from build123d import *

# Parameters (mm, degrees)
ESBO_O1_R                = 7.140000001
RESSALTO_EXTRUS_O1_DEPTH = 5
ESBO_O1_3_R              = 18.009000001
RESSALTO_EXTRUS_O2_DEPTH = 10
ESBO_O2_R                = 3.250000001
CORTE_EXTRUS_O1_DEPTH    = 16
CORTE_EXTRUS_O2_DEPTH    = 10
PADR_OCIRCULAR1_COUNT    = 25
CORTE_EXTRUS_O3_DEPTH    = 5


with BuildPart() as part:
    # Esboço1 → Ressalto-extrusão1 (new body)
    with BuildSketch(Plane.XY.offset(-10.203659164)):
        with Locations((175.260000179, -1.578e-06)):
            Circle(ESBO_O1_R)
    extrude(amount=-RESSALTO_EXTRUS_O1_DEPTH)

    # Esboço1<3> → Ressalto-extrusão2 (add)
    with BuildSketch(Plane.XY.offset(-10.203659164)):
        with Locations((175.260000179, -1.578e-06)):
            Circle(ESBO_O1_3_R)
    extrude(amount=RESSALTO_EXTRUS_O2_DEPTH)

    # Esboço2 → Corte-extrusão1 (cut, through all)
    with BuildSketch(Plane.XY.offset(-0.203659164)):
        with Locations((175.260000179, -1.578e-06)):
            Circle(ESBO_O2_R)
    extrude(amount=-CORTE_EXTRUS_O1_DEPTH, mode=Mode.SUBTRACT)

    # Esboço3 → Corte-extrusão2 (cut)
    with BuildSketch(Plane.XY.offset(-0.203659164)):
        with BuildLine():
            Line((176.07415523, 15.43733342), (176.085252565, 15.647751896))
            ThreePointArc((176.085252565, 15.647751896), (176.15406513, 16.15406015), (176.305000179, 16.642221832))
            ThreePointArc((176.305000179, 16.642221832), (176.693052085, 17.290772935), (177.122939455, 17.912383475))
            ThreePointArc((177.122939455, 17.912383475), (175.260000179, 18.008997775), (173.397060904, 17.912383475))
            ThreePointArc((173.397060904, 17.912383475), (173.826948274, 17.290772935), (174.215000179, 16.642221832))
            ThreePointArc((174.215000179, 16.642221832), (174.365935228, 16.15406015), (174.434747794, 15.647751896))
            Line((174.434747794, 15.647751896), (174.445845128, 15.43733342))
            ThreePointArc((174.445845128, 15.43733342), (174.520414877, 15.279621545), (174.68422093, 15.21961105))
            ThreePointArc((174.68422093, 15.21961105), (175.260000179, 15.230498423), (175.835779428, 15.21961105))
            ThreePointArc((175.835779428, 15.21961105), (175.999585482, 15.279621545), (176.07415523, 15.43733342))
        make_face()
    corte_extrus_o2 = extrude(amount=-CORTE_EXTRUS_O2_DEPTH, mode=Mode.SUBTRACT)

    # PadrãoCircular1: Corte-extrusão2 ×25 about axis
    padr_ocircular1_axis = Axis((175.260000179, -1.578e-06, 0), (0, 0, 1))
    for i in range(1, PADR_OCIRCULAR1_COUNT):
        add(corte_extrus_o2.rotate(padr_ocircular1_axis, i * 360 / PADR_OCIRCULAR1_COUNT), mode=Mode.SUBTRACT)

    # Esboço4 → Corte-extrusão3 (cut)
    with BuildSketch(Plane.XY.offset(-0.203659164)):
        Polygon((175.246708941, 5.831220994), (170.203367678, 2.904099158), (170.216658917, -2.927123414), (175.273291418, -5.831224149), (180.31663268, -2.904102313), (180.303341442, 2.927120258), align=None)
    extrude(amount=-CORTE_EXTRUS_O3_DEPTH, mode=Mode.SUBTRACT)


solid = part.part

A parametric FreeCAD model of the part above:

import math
import FreeCAD as App
import Part
import Sketcher
from FreeCAD import Vector
Q = App.Units.Quantity


def add_polygon(sketch, points):
    """Adds a closed chain of lines whose ends are joined by coincident constraints."""
    first, n = sketch.GeometryCount, len(points)
    for a, b in zip(points, points[1:] + points[:1]):
        sketch.addGeometry(Part.LineSegment(App.Vector(*a, 0), App.Vector(*b, 0)), False)
    for i in range(n):
        sketch.addConstraint(Sketcher.Constraint("Coincident", first + i, 2, first + (i + 1) % n, 1))

doc = App.newDocument("Part")
body = doc.addObject("PartDesign::Body", "Body")

# Sketch on XY plane
sketch1 = body.newObject("Sketcher::SketchObject", "Sketch")
sketch1.AttachmentSupport = (doc.getObject("XY_Plane"), [""])
sketch1.MapMode = "FlatFace"
sketch1.AttachmentOffset = App.Placement(Vector(0, 0, -10.203659), App.Rotation())
sketch1.addGeometry(Part.Circle(Vector(175, 0, 0), Vector(0, 0, 1), 7), False)
sketch1.addConstraint(Sketcher.Constraint("PointOnObject", 0, 3, -1))
sketch1.addConstraint(Sketcher.Constraint("Diameter", 0, Q("14.28 mm")))
sketch1.addConstraint(Sketcher.Constraint("DistanceX", -1, 1, 0, 3, Q("175.26 mm")))
pad1 = body.newObject("PartDesign::Pad", "Pad")
pad1.Profile = sketch1
pad1.Length = 5
pad1.Reversed = True

# Sketch on XY plane
sketch2 = body.newObject("Sketcher::SketchObject", "Sketch001")
sketch2.AttachmentSupport = (doc.getObject("XY_Plane"), [""])
sketch2.MapMode = "FlatFace"
sketch2.AttachmentOffset = App.Placement(Vector(0, 0, -10.203659), App.Rotation())
sketch2.addGeometry(Part.Circle(Vector(175, 0, 0), Vector(0, 0, 1), 18), False)
sketch2.addConstraint(Sketcher.Constraint("PointOnObject", 0, 3, -1))
sketch2.addConstraint(Sketcher.Constraint("Diameter", 0, Q("36.018 mm")))
sketch2.addConstraint(Sketcher.Constraint("DistanceX", -1, 1, 0, 3, Q("175.26 mm")))
pad2 = body.newObject("PartDesign::Pad", "Pad001")
pad2.Profile = sketch2
pad2.Length = 10

# Sketch on XY plane
sketch3 = body.newObject("Sketcher::SketchObject", "Sketch002")
sketch3.AttachmentSupport = (doc.getObject("XY_Plane"), [""])
sketch3.MapMode = "FlatFace"
sketch3.AttachmentOffset = App.Placement(Vector(0, 0, -0.203659), App.Rotation())
sketch3.addGeometry(Part.Circle(Vector(175.3, 0, 0), Vector(0, 0, 1), 3.3), False)
sketch3.addConstraint(Sketcher.Constraint("PointOnObject", 0, 3, -1))
sketch3.addConstraint(Sketcher.Constraint("Diameter", 0, Q("6.5 mm")))
sketch3.addConstraint(Sketcher.Constraint("DistanceX", -1, 1, 0, 3, Q("175.26 mm")))
pocket1 = body.newObject("PartDesign::Pocket", "Pocket")
pocket1.Profile = sketch3
pocket1.Type = "ThroughAll"

# Sketch on XY plane
sketch4 = body.newObject("Sketcher::SketchObject", "Sketch003")
sketch4.AttachmentSupport = (doc.getObject("XY_Plane"), [""])
sketch4.MapMode = "FlatFace"
sketch4.AttachmentOffset = App.Placement(Vector(0, 0, -0.203659), App.Rotation())
sketch4.addGeometry(Part.LineSegment(Vector(176.074155, 15.437333, 0), Vector(176.085253, 15.647752, 0)), False)
sketch4.addGeometry(Part.ArcOfCircle(Part.Circle(Vector(179.185253, 15.48426, 0), Vector(0, 0, 1), 3.104308), math.radians(158.098152), math.radians(176.981055)), False)
sketch4.addGeometry(Part.ArcOfCircle(Part.Circle(Vector(186.344318, 11.075698, 0), Vector(0, 0, 1), 11.47929), math.radians(143.446942), math.radians(150.992846)), False)
sketch4.addGeometry(Part.ArcOfCircle(Part.Circle(Vector(175.26, -0.000122, 0), Vector(0, 0, 1), 18.00912), math.radians(84.062462), math.radians(95.937538)), False)
sketch4.addGeometry(Part.ArcOfCircle(Part.Circle(Vector(164.175682, 11.075698, 0), Vector(0, 0, 1), 11.47929), math.radians(29.007154), math.radians(36.553058)), False)
sketch4.addGeometry(Part.ArcOfCircle(Part.Circle(Vector(171.334748, 15.48426, 0), Vector(0, 0, 1), 3.104308), math.radians(3.018945), math.radians(21.901848)), False)
sketch4.addGeometry(Part.LineSegment(Vector(174.434748, 15.647752, 0), Vector(174.445845, 15.437333, 0)), False)
sketch4.addGeometry(Part.ArcOfCircle(Part.Circle(Vector(174.675526, 15.449447, 0), Vector(0, 0, 1), 0.23), math.radians(-176.981055), math.radians(-87.833454)), False)
sketch4.addGeometry(Part.ArcOfCircle(Part.Circle(Vector(175.26, -0.000002, 0), Vector(0, 0, 1), 15.2305), math.radians(87.833454), math.radians(92.166546)), False)
sketch4.addGeometry(Part.ArcOfCircle(Part.Circle(Vector(175.844474, 15.449447, 0), Vector(0, 0, 1), 0.23), math.radians(-92.166547), math.radians(-3.018945)), False)
sketch4.addConstraint(Sketcher.Constraint("Coincident", 0, 2, 1, 2))
sketch4.addConstraint(Sketcher.Constraint("Coincident", 1, 1, 2, 2))
sketch4.addConstraint(Sketcher.Constraint("Coincident", 2, 1, 3, 1))
sketch4.addConstraint(Sketcher.Constraint("Coincident", 3, 2, 4, 2))
sketch4.addConstraint(Sketcher.Constraint("Coincident", 4, 1, 5, 2))
sketch4.addConstraint(Sketcher.Constraint("Coincident", 5, 1, 6, 1))
sketch4.addConstraint(Sketcher.Constraint("Coincident", 6, 2, 7, 1))
sketch4.addConstraint(Sketcher.Constraint("Coincident", 7, 2, 8, 2))
sketch4.addConstraint(Sketcher.Constraint("Coincident", 8, 1, 9, 1))
sketch4.addConstraint(Sketcher.Constraint("Coincident", 9, 2, 0, 1))
sketch4.addConstraint(Sketcher.Constraint("Radius", 7, Q("0.23 mm")))
sketch4.addConstraint(Sketcher.Constraint("Radius", 9, Q("0.23 mm")))
sketch4.addConstraint(Sketcher.Constraint("Radius", 8, Q("15.2305 mm")))
sketch4.addConstraint(Sketcher.Constraint("DistanceX", 0, 2, 1, 3, Q("3.1 mm")))
sketch4.addConstraint(Sketcher.Constraint("DistanceX", -1, 1, 3, 3, Q("175.26 mm")))
sketch4.addConstraint(Sketcher.Constraint("DistanceX", -1, 1, 8, 3, Q("175.26 mm")))
sketch4.addConstraint(Sketcher.Constraint("Radius", 1, Q("3.104308 mm")))
sketch4.addConstraint(Sketcher.Constraint("Radius", 2, Q("11.47929 mm")))
sketch4.addConstraint(Sketcher.Constraint("Radius", 3, Q("18.00912 mm")))
sketch4.addConstraint(Sketcher.Constraint("Radius", 4, Q("11.47929 mm")))
sketch4.addConstraint(Sketcher.Constraint("Radius", 5, Q("3.104308 mm")))
sketch4.addConstraint(Sketcher.Constraint("DistanceX", 4, 1, 1, 1, Q("2.09 mm")))
sketch4.addConstraint(Sketcher.Constraint("DistanceX", -1, 1, 1, 1, Q("176.305 mm")))
sketch4.addConstraint(Sketcher.Constraint("DistanceY", -1, 1, 2, 3, Q("11.075698 mm")))
sketch4.addConstraint(Sketcher.Constraint("DistanceY", -1, 1, 4, 3, Q("11.075698 mm")))
sketch4.addConstraint(Sketcher.Constraint("DistanceY", 8, 3, 4, 3, Q("11.0757 mm")))
sketch4.addConstraint(Sketcher.Constraint("Distance", 0, Q("0.210711 mm")))
sketch4.addConstraint(Sketcher.Constraint("Distance", 6, Q("0.210711 mm")))
sketch4.addConstraint(Sketcher.Constraint("DistanceY", -1, 1, 1, 3, Q("15.48426 mm")))
sketch4.addConstraint(Sketcher.Constraint("DistanceX", -1, 1, 2, 3, Q("186.344318 mm")))
sketch4.addConstraint(Sketcher.Constraint("DistanceY", -1, 1, 5, 3, Q("15.48426 mm")))
sketch4.addConstraint(Sketcher.Constraint("DistanceX", -1, 1, 2, 1, Q("177.122939 mm")))
sketch4.addConstraint(Sketcher.Constraint("DistanceX", -1, 1, 3, 2, Q("173.397061 mm")))
sketch4.addConstraint(Sketcher.Constraint("DistanceY", -1, 1, 5, 1, Q("15.647752 mm")))
sketch4.addConstraint(Sketcher.Constraint("DistanceX", -1, 1, 7, 2, Q("174.684221 mm")))
sketch4.addConstraint(Sketcher.Constraint("DistanceX", -1, 1, 8, 1, Q("175.835779 mm")))
sketch4.addConstraint(Sketcher.Constraint("DistanceX", 5, 3, 7, 3, Q("3.340778 mm")))
sketch4.addConstraint(Sketcher.Constraint("DistanceX", 7, 3, 9, 3, Q("1.168949 mm")))
pocket2 = body.newObject("PartDesign::Pocket", "Pocket001")
pocket2.Profile = sketch4
pocket2.Length = 10
doc.recompute()

datumline = body.newObject("PartDesign::Line", "DatumLine")
datumline.Placement = App.Placement(Vector(175.26, -0.000002, 0), App.Rotation(Vector(0, 0, 1), Vector(0, 0, 1)))
polarpattern = body.newObject("PartDesign::PolarPattern", "PolarPattern")
polarpattern.Originals = [pocket2]
polarpattern.Axis = (datumline, [""])
polarpattern.Angle = 360
polarpattern.Occurrences = 25
body.Tip = polarpattern

# Sketch on XY plane
sketch5 = body.newObject("Sketcher::SketchObject", "Sketch004")
sketch5.AttachmentSupport = (doc.getObject("XY_Plane"), [""])
sketch5.MapMode = "FlatFace"
sketch5.AttachmentOffset = App.Placement(Vector(0, 0, -0.203659), App.Rotation())
add_polygon(sketch5, [(175, 6), (170, 3), (170, -3), (175, -6), (180, -3), (180, 3)])  # lines 0-5
sketch5.addConstraint(Sketcher.Constraint("Parallel", 0, 3))
sketch5.addConstraint(Sketcher.Constraint("Parallel", 1, 4))
sketch5.addConstraint(Sketcher.Constraint("Parallel", 2, 5))
sketch5.addConstraint(Sketcher.Constraint("Equal", 0, 1))
sketch5.addConstraint(Sketcher.Constraint("Equal", 1, 2))
sketch5.addConstraint(Sketcher.Constraint("Equal", 2, 3))
sketch5.addConstraint(Sketcher.Constraint("DistanceY", -1, 1, 0, 2, Q("2.904099 mm")))
sketch5.addConstraint(Sketcher.Constraint("DistanceY", 2, 2, 1, 2, Q("2.904101 mm")))
sketch5.addConstraint(Sketcher.Constraint("DistanceY", 3, 2, 0, 2, Q("5.808201 mm")))
sketch5.addConstraint(Sketcher.Constraint("DistanceX", -1, 1, 1, 2, Q("170.216659 mm")))
sketch5.addConstraint(Sketcher.Constraint("DistanceX", -1, 1, 2, 2, Q("175.273291 mm")))
sketch5.addConstraint(Sketcher.Constraint("DistanceX", -1, 1, 4, 2, Q("180.303341 mm")))
pocket3 = body.newObject("PartDesign::Pocket", "Pocket002")
pocket3.Profile = sketch5
pocket3.Length = 5

doc.recompute()
